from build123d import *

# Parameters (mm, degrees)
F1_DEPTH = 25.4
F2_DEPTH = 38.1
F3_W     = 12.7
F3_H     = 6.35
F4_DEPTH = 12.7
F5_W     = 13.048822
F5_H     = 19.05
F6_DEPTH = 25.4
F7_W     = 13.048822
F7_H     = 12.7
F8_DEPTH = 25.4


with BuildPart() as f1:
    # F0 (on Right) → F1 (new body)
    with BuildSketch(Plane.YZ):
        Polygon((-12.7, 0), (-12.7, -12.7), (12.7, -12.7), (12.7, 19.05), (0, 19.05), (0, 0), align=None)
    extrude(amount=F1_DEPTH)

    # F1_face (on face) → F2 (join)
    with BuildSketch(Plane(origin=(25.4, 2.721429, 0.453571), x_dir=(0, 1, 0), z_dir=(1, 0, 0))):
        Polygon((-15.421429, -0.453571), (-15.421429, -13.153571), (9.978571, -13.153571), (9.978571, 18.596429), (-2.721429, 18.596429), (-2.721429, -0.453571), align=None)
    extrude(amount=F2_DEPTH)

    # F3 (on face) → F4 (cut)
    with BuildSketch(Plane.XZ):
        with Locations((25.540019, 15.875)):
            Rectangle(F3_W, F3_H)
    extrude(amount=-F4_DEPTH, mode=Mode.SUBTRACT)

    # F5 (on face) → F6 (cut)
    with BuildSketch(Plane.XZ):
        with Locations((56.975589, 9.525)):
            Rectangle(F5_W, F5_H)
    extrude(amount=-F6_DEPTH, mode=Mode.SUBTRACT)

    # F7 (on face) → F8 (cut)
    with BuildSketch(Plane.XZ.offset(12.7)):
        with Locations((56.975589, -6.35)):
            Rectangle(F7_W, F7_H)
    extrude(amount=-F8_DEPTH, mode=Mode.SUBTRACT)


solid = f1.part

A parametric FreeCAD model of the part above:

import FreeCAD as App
import Part
import Sketcher
Q = App.Units.Quantity

doc = App.newDocument("Part")
body = doc.addObject("PartDesign::Body", "Body")

# Sketch on YZ plane
sketch1 = body.newObject("Sketcher::SketchObject", "Sketch")
sketch1.AttachmentSupport = (doc.getObject("YZ_Plane"), [""])
sketch1.MapMode = "FlatFace"
sketch1.addGeometry([
    Part.LineSegment(App.Vector(-13, 0, 0), App.Vector(-13, -13, 0)),  # 0
    Part.LineSegment(App.Vector(-13, -13, 0), App.Vector(13, -13, 0)),  # 1
    Part.LineSegment(App.Vector(13, -13, 0), App.Vector(13, 19, 0)),  # 2
    Part.LineSegment(App.Vector(13, 19, 0), App.Vector(0, 19, 0)),  # 3
    Part.LineSegment(App.Vector(0, 19, 0), App.Vector(0, 0, 0)),  # 4
    Part.LineSegment(App.Vector(0, 0, 0), App.Vector(-13, 0, 0)),  # 5
], False)
sketch1.addConstraint([
    Sketcher.Constraint("Coincident", 0, 2, 1, 1),
    Sketcher.Constraint("Coincident", 1, 2, 2, 1),
    Sketcher.Constraint("Coincident", 2, 2, 3, 1),
    Sketcher.Constraint("Coincident", 3, 2, 4, 1),
    Sketcher.Constraint("Coincident", 4, 2, 5, 1),
    Sketcher.Constraint("Coincident", 5, 2, 0, 1),
    Sketcher.Constraint("Vertical", 0),
    Sketcher.Constraint("Horizontal", 1),
    Sketcher.Constraint("Vertical", 2),
    Sketcher.Constraint("Horizontal", 3),
    Sketcher.Constraint("Vertical", 4),
    Sketcher.Constraint("Horizontal", 5),
    Sketcher.Constraint("Coincident", 4, 2, -1, 1),
    Sketcher.Constraint("Equal", 3, 5),
    Sketcher.Constraint("Equal", 5, 0),
    Sketcher.Constraint("DistanceX", 1, 1, 1, 2, Q("1 in")),
    Sketcher.Constraint("DistanceY", 2, 1, 2, 2, Q("1.25 in")),
])
pad1 = body.newObject("PartDesign::Pad", "Pad")
pad1.Profile = sketch1
pad1.Length = Q("1 in")

# Sketch on YZ plane
sketch2 = body.newObject("Sketcher::SketchObject", "Sketch001")
sketch2.AttachmentSupport = (doc.getObject("YZ_Plane"), [""])
sketch2.MapMode = "FlatFace"
sketch2.AttachmentOffset = App.Placement(App.Vector(0, 0, 1 * 25.4), App.Rotation())
sketch2.addGeometry([
    Part.LineSegment(App.Vector(-13, 0, 0), App.Vector(-13, -13, 0)),  # 0
    Part.LineSegment(App.Vector(-13, -13, 0), App.Vector(13, -13, 0)),  # 1
    Part.LineSegment(App.Vector(13, -13, 0), App.Vector(13, 19, 0)),  # 2
    Part.LineSegment(App.Vector(13, 19, 0), App.Vector(0, 19, 0)),  # 3
    Part.LineSegment(App.Vector(0, 19, 0), App.Vector(0, 0, 0)),  # 4
    Part.LineSegment(App.Vector(0, 0, 0), App.Vector(-13, 0, 0)),  # 5
], False)
sketch2.addConstraint([
    Sketcher.Constraint("Coincident", 0, 2, 1, 1),
    Sketcher.Constraint("Coincident", 1, 2, 2, 1),
    Sketcher.Constraint("Coincident", 2, 2, 3, 1),
    Sketcher.Constraint("Coincident", 3, 2, 4, 1),
    Sketcher.Constraint("Coincident", 4, 2, 5, 1),
    Sketcher.Constraint("Coincident", 5, 2, 0, 1),
    Sketcher.Constraint("Vertical", 0),
    Sketcher.Constraint("Horizontal", 1),
    Sketcher.Constraint("Vertical", 2),
    Sketcher.Constraint("Horizontal", 3),
    Sketcher.Constraint("Vertical", 4),
    Sketcher.Constraint("Horizontal", 5),
    Sketcher.Constraint("Coincident", 4, 2, -1, 1),
    Sketcher.Constraint("Equal", 3, 5),
    Sketcher.Constraint("Equal", 5, 0),
    Sketcher.Constraint("DistanceX", 1, 1, 1, 2, Q("1 in")),
    Sketcher.Constraint("DistanceY", 2, 1, 2, 2, Q("1.25 in")),
])
pad2 = body.newObject("PartDesign::Pad", "Pad001")
pad2.Profile = sketch2
pad2.Length = Q("1.5 in")

# Sketch on XZ plane
sketch3 = body.newObject("Sketcher::SketchObject", "Sketch002")
sketch3.AttachmentSupport = (doc.getObject("XZ_Plane"), [""])
sketch3.MapMode = "FlatFace"
sketch3.addGeometry([
    Part.LineSegment(App.Vector(19, 19, 0), App.Vector(19, 13, 0)),
    Part.LineSegment(App.Vector(19, 13, 0), App.Vector(32, 13, 0)),
    Part.LineSegment(App.Vector(32, 13, 0), App.Vector(32, 19, 0)),
    Part.LineSegment(App.Vector(32, 19, 0), App.Vector(19, 19, 0)),
], False)
sketch3.addConstraint([
    Sketcher.Constraint("Coincident", 0, 2, 1, 1),
    Sketcher.Constraint("Coincident", 1, 2, 2, 1),
    Sketcher.Constraint("Coincident", 2, 2, 3, 1),
    Sketcher.Constraint("Coincident", 3, 2, 0, 1),
    Sketcher.Constraint("Vertical", 0),
    Sketcher.Constraint("Horizontal", 1),
    Sketcher.Constraint("Vertical", 2),
    Sketcher.Constraint("Horizontal", 3),
    Sketcher.Constraint("DistanceX", 1, 1, 1, 2, Q("0.5 in")),
    Sketcher.Constraint("DistanceY", 0, 2, 0, 1, Q("0.25 in")),
    Sketcher.Constraint("DistanceY", -1, 1, 0, 2, Q("0.5 in")),
    Sketcher.Constraint("DistanceX", -1, 1, 0, 2, Q("19.190019 mm")),
])
pocket1 = body.newObject("PartDesign::Pocket", "Pocket")
pocket1.Profile = sketch3
pocket1.Length = Q("0.5 in")

# Sketch on XZ plane
sketch4 = body.newObject("Sketcher::SketchObject", "Sketch003")
sketch4.AttachmentSupport = (doc.getObject("XZ_Plane"), [""])
sketch4.MapMode = "FlatFace"
sketch4.addGeometry([
    Part.LineSegment(App.Vector(50, 19, 0), App.Vector(50, 0, 0)),
    Part.LineSegment(App.Vector(50, 0, 0), App.Vector(64, 0, 0)),
    Part.LineSegment(App.Vector(64, 0, 0), App.Vector(64, 19, 0)),
    Part.LineSegment(App.Vector(64, 19, 0), App.Vector(50, 19, 0)),
], False)
sketch4.addConstraint([
    Sketcher.Constraint("Coincident", 0, 2, 1, 1),
    Sketcher.Constraint("Coincident", 1, 2, 2, 1),
    Sketcher.Constraint("Coincident", 2, 2, 3, 1),
    Sketcher.Constraint("Coincident", 3, 2, 0, 1),
    Sketcher.Constraint("Vertical", 0),
    Sketcher.Constraint("Horizontal", 1),
    Sketcher.Constraint("Vertical", 2),
    Sketcher.Constraint("Horizontal", 3),
    Sketcher.Constraint("PointOnObject", 0, 2, -1),
    Sketcher.Constraint("DistanceY", 0, 2, 0, 1, Q("0.75 in")),
    Sketcher.Constraint("DistanceX", -1, 1, 1, 2, Q("2.5 in")),
    Sketcher.Constraint("DistanceX", 1, 1, 1, 2, Q("13.048822 mm")),
])
pocket2 = body.newObject("PartDesign::Pocket", "Pocket001")
pocket2.Profile = sketch4
pocket2.Length = Q("1 in")

# Sketch on XZ plane
sketch5 = body.newObject("Sketcher::SketchObject", "Sketch004")
sketch5.AttachmentSupport = (doc.getObject("XZ_Plane"), [""])
sketch5.MapMode = "FlatFace"
sketch5.AttachmentOffset = App.Placement(App.Vector(0, 0, 0.5 * 25.4), App.Rotation())
sketch5.addGeometry([
    Part.LineSegment(App.Vector(50, 0, 0), App.Vector(50, -13, 0)),
    Part.LineSegment(App.Vector(50, -13, 0), App.Vector(64, -13, 0)),
    Part.LineSegment(App.Vector(64, -13, 0), App.Vector(64, 0, 0)),
    Part.LineSegment(App.Vector(64, 0, 0), App.Vector(50, 0, 0)),
], False)
sketch5.addConstraint([
    Sketcher.Constraint("Coincident", 0, 2, 1, 1),
    Sketcher.Constraint("Coincident", 1, 2, 2, 1),
    Sketcher.Constraint("Coincident", 2, 2, 3, 1),
    Sketcher.Constraint("Coincident", 3, 2, 0, 1),
    Sketcher.Constraint("Vertical", 0),
    Sketcher.Constraint("Horizontal", 1),
    Sketcher.Constraint("Vertical", 2),
    Sketcher.Constraint("Horizontal", 3),
    Sketcher.Constraint("PointOnObject", 2, 2, -1),
    Sketcher.Constraint("DistanceY", 0, 2, 0, 1, Q("0.5 in")),
    Sketcher.Constraint("DistanceX", -1, 1, 1, 2, Q("2.5 in")),
    Sketcher.Constraint("DistanceX", 1, 1, 1, 2, Q("13.048822 mm")),
])
pocket3 = body.newObject("PartDesign::Pocket", "Pocket002")
pocket3.Profile = sketch5
pocket3.Length = Q("1 in")

doc.recompute()
